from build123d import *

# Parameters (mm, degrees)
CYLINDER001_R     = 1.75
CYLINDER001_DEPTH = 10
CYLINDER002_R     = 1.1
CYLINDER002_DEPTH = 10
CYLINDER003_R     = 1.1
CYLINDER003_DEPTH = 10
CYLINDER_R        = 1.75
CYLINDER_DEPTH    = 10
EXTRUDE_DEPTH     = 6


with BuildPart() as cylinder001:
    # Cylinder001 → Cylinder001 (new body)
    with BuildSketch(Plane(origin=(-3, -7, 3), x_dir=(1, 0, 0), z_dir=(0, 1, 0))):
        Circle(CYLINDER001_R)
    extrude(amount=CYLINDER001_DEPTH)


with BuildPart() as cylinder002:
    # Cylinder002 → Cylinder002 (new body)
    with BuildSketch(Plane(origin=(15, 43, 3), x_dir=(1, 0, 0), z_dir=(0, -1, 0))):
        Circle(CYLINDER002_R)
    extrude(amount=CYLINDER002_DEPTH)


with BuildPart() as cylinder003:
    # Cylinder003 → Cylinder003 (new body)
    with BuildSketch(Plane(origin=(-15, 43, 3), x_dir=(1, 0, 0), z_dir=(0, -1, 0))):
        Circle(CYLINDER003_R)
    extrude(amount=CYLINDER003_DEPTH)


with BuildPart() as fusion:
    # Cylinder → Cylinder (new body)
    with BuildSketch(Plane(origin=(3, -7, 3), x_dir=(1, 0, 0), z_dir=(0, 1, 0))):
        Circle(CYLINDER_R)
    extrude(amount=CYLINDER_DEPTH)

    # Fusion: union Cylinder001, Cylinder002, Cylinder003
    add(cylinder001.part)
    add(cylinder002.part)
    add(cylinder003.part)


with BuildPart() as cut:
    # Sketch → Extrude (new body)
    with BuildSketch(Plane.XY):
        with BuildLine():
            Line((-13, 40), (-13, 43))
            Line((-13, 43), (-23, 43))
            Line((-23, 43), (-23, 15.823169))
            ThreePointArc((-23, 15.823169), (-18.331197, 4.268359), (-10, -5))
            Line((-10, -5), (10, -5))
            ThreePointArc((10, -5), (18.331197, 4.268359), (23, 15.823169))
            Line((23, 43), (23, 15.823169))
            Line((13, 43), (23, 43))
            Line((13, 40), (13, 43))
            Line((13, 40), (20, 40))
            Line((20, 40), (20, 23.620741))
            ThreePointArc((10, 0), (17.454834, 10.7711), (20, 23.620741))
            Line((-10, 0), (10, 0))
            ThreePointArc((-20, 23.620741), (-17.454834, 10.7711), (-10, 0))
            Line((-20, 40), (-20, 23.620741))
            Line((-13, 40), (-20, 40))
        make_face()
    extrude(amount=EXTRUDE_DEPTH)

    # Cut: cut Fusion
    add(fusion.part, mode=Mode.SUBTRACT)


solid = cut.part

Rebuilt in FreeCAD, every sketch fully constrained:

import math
import FreeCAD as App
import Part
import Sketcher
from FreeCAD import Vector
Q = App.Units.Quantity

doc = App.newDocument("Part")
body = doc.addObject("PartDesign::Body", "Body")

sketch1 = body.newObject("Sketcher::SketchObject", "Sketch")
sketch1.AttachmentSupport = (doc.getObject("XZ_Plane"), [""])
sketch1.MapMode = "FlatFace"
sketch1.AttachmentOffset = App.Placement(Vector(0, 0, 7), App.Rotation())
sketch1.addGeometry(Part.Circle(Vector(-3, 3, 0), Vector(0, 0, 1), 1.8), False)
sketch1.addConstraint([
    Sketcher.Constraint("Diameter", 0, Q("3.5 mm")),
    Sketcher.Constraint("DistanceX", 0, 3, -1, 1, Q("3 mm")),
    Sketcher.Constraint("DistanceY", -1, 1, 0, 3, Q("3 mm")),
])
pad1 = body.newObject("PartDesign::Pad", "Pad")
pad1.Profile = sketch1
pad1.Length = 10
pad1.Reversed = True
body2 = doc.addObject("PartDesign::Body", "Body001")

sketch2 = body2.newObject("Sketcher::SketchObject", "Sketch001")
sketch2.AttachmentSupport = (doc.getObject("XZ_Plane001"), [""])
sketch2.MapMode = "FlatFace"
sketch2.AttachmentOffset = App.Placement(Vector(0, 0, -43), App.Rotation())
sketch2.addGeometry(Part.Circle(Vector(15, 3, 0), Vector(0, 0, 1), 1.1), False)
sketch2.addConstraint([
    Sketcher.Constraint("Diameter", 0, Q("2.2 mm")),
    Sketcher.Constraint("DistanceX", -1, 1, 0, 3, Q("15 mm")),
    Sketcher.Constraint("DistanceY", -1, 1, 0, 3, Q("3 mm")),
])
pad2 = body2.newObject("PartDesign::Pad", "Pad001")
pad2.Profile = sketch2
pad2.Length = 10
body3 = doc.addObject("PartDesign::Body", "Body002")

sketch3 = body3.newObject("Sketcher::SketchObject", "Sketch002")
sketch3.AttachmentSupport = (doc.getObject("XZ_Plane002"), [""])
sketch3.MapMode = "FlatFace"
sketch3.AttachmentOffset = App.Placement(Vector(0, 0, -43), App.Rotation())
sketch3.addGeometry(Part.Circle(Vector(-15, 3, 0), Vector(0, 0, 1), 1.1), False)
sketch3.addConstraint([
    Sketcher.Constraint("Diameter", 0, Q("2.2 mm")),
    Sketcher.Constraint("DistanceX", 0, 3, -1, 1, Q("15 mm")),
    Sketcher.Constraint("DistanceY", -1, 1, 0, 3, Q("3 mm")),
])
pad3 = body3.newObject("PartDesign::Pad", "Pad002")
pad3.Profile = sketch3
pad3.Length = 10
body4 = doc.addObject("PartDesign::Body", "Body003")
body4.AllowCompound = True

sketch4 = body4.newObject("Sketcher::SketchObject", "Sketch003")
sketch4.AttachmentSupport = (doc.getObject("XZ_Plane003"), [""])
sketch4.MapMode = "FlatFace"
sketch4.AttachmentOffset = App.Placement(Vector(0, 0, 7), App.Rotation())
sketch4.addGeometry(Part.Circle(Vector(3, 3, 0), Vector(0, 0, 1), 1.8), False)
sketch4.addConstraint([
    Sketcher.Constraint("Diameter", 0, Q("3.5 mm")),
    Sketcher.Constraint("DistanceX", -1, 1, 0, 3, Q("3 mm")),
    Sketcher.Constraint("DistanceY", -1, 1, 0, 3, Q("3 mm")),
])
pad4 = body4.newObject("PartDesign::Pad", "Pad003")
pad4.Profile = sketch4
pad4.Length = 10
pad4.Reversed = True
doc.recompute()

boolean = body4.newObject("PartDesign::Boolean", "Boolean")
boolean.Type = "Fuse"
boolean.addObjects([body])
doc.recompute()

boolean2 = body4.newObject("PartDesign::Boolean", "Boolean001")
boolean2.Type = "Fuse"
boolean2.addObjects([body2])
doc.recompute()

boolean3 = body4.newObject("PartDesign::Boolean", "Boolean002")
boolean3.Type = "Fuse"
boolean3.addObjects([body3])
body5 = doc.addObject("PartDesign::Body", "Body004")

sketch5 = body5.newObject("Sketcher::SketchObject", "Sketch004")
sketch5.AttachmentSupport = (doc.getObject("XY_Plane004"), [""])
sketch5.MapMode = "FlatFace"
sketch5.addGeometry([
    Part.LineSegment(Vector(-13, 40, 0), Vector(-13, 43, 0)),
    Part.LineSegment(Vector(-13, 43, 0), Vector(-23, 43, 0)),
    Part.LineSegment(Vector(-23, 43, 0), Vector(-23, 15.8, 0)),
    Part.ArcOfCircle(Part.Circle(Vector(12.2, 23.3, 0), Vector(0, 0, 1), 36), math.radians(-168), math.radians(-128)),
    Part.LineSegment(Vector(-10, -5, 0), Vector(10, -5, 0)),
    Part.ArcOfCircle(Part.Circle(Vector(-12.2, 23.3, 0), Vector(0, 0, 1), 36), math.radians(-52), math.radians(-12)),
    Part.LineSegment(Vector(23, 15.8, 0), Vector(23, 43, 0)),
    Part.LineSegment(Vector(23, 43, 0), Vector(13, 43, 0)),
    Part.LineSegment(Vector(13, 43, 0), Vector(13, 40, 0)),
    Part.LineSegment(Vector(13, 40, 0), Vector(20, 40, 0)),
    Part.LineSegment(Vector(20, 40, 0), Vector(20, 23.6, 0)),
    Part.ArcOfCircle(Part.Circle(Vector(-12.2, 23.3, 0), Vector(0, 0, 1), 32.2), math.radians(-46), math.radians(1)),
    Part.LineSegment(Vector(10, 0, 0), Vector(-10, 0, 0)),
    Part.ArcOfCircle(Part.Circle(Vector(12.2, 23.3, 0), Vector(0, 0, 1), 32.2), math.radians(179), math.radians(226)),
    Part.LineSegment(Vector(-20, 23.6, 0), Vector(-20, 40, 0)),
    Part.LineSegment(Vector(-20, 40, 0), Vector(-13, 40, 0)),
], False)
sketch5.addConstraint([
    Sketcher.Constraint("Coincident", 0, 2, 1, 1),
    Sketcher.Constraint("Coincident", 1, 2, 2, 1),
    Sketcher.Constraint("Coincident", 2, 2, 3, 1),
    Sketcher.Constraint("Coincident", 3, 2, 4, 1),
    Sketcher.Constraint("Coincident", 4, 2, 5, 1),
    Sketcher.Constraint("Coincident", 5, 2, 6, 1),
    Sketcher.Constraint("Coincident", 6, 2, 7, 1),
    Sketcher.Constraint("Coincident", 7, 2, 8, 1),
    Sketcher.Constraint("Coincident", 8, 2, 9, 1),
    Sketcher.Constraint("Coincident", 9, 2, 10, 1),
    Sketcher.Constraint("Coincident", 10, 2, 11, 2),
    Sketcher.Constraint("Coincident", 11, 1, 12, 1),
    Sketcher.Constraint("Coincident", 12, 2, 13, 2),
    Sketcher.Constraint("Coincident", 13, 1, 14, 1),
    Sketcher.Constraint("Coincident", 14, 2, 15, 1),
    Sketcher.Constraint("Coincident", 15, 2, 0, 1),
    Sketcher.Constraint("Vertical", 0),
    Sketcher.Constraint("Horizontal", 1),
    Sketcher.Constraint("Vertical", 2),
    Sketcher.Constraint("Horizontal", 4),
    Sketcher.Constraint("Vertical", 6),
    Sketcher.Constraint("Horizontal", 7),
    Sketcher.Constraint("Vertical", 8),
    Sketcher.Constraint("Horizontal", 9),
    Sketcher.Constraint("Vertical", 10),
    Sketcher.Constraint("Horizontal", 12),
    Sketcher.Constraint("Vertical", 14),
    Sketcher.Constraint("Horizontal", 15),
    Sketcher.Constraint("Coincident", 11, 3, 5, 3),
    Sketcher.Constraint("Coincident", 13, 3, 3, 3),
    Sketcher.Constraint("Equal", 3, 5),
    Sketcher.Constraint("Equal", 11, 13),
    Sketcher.Constraint("Symmetric", 11, 1, 12, 2, -1, 1),
    Sketcher.Constraint("Symmetric", 2, 2, 5, 2, -2),
    Sketcher.Constraint("Symmetric", 0, 2, 7, 2, -2),
    Sketcher.Constraint("Symmetric", 9, 2, 14, 2, -2),
    Sketcher.Constraint("Vertical", 4, 2, 11, 1),
    Sketcher.Constraint("DistanceX", 1, 2, 1, 1, Q("10 mm")),
    Sketcher.Constraint("DistanceX", 4, 1, 4, 2, Q("20 mm")),
    Sketcher.Constraint("DistanceX", 9, 1, 9, 2, Q("7 mm")),
    Sketcher.Constraint("DistanceY", 0, 1, 0, 2, Q("3 mm")),
    Sketcher.Constraint("DistanceX", 0, 2, -1, 1, Q("13 mm")),
    Sketcher.Constraint("DistanceY", -1, 1, 0, 2, Q("43 mm")),
    Sketcher.Constraint("DistanceY", 3, 2, -1, 1, Q("5 mm")),
    Sketcher.Constraint("Radius", 3, Q("35.972341 mm")),
    Sketcher.Constraint("DistanceY", 2, 2, 2, 1, Q("27.176831 mm")),
])
pad5 = body5.newObject("PartDesign::Pad", "Pad004")
pad5.Profile = sketch5
pad5.Length = 6
doc.recompute()

boolean4 = body5.newObject("PartDesign::Boolean", "Boolean003")
boolean4.Type = "Cut"
boolean4.addObjects([body4])

doc.recompute()
